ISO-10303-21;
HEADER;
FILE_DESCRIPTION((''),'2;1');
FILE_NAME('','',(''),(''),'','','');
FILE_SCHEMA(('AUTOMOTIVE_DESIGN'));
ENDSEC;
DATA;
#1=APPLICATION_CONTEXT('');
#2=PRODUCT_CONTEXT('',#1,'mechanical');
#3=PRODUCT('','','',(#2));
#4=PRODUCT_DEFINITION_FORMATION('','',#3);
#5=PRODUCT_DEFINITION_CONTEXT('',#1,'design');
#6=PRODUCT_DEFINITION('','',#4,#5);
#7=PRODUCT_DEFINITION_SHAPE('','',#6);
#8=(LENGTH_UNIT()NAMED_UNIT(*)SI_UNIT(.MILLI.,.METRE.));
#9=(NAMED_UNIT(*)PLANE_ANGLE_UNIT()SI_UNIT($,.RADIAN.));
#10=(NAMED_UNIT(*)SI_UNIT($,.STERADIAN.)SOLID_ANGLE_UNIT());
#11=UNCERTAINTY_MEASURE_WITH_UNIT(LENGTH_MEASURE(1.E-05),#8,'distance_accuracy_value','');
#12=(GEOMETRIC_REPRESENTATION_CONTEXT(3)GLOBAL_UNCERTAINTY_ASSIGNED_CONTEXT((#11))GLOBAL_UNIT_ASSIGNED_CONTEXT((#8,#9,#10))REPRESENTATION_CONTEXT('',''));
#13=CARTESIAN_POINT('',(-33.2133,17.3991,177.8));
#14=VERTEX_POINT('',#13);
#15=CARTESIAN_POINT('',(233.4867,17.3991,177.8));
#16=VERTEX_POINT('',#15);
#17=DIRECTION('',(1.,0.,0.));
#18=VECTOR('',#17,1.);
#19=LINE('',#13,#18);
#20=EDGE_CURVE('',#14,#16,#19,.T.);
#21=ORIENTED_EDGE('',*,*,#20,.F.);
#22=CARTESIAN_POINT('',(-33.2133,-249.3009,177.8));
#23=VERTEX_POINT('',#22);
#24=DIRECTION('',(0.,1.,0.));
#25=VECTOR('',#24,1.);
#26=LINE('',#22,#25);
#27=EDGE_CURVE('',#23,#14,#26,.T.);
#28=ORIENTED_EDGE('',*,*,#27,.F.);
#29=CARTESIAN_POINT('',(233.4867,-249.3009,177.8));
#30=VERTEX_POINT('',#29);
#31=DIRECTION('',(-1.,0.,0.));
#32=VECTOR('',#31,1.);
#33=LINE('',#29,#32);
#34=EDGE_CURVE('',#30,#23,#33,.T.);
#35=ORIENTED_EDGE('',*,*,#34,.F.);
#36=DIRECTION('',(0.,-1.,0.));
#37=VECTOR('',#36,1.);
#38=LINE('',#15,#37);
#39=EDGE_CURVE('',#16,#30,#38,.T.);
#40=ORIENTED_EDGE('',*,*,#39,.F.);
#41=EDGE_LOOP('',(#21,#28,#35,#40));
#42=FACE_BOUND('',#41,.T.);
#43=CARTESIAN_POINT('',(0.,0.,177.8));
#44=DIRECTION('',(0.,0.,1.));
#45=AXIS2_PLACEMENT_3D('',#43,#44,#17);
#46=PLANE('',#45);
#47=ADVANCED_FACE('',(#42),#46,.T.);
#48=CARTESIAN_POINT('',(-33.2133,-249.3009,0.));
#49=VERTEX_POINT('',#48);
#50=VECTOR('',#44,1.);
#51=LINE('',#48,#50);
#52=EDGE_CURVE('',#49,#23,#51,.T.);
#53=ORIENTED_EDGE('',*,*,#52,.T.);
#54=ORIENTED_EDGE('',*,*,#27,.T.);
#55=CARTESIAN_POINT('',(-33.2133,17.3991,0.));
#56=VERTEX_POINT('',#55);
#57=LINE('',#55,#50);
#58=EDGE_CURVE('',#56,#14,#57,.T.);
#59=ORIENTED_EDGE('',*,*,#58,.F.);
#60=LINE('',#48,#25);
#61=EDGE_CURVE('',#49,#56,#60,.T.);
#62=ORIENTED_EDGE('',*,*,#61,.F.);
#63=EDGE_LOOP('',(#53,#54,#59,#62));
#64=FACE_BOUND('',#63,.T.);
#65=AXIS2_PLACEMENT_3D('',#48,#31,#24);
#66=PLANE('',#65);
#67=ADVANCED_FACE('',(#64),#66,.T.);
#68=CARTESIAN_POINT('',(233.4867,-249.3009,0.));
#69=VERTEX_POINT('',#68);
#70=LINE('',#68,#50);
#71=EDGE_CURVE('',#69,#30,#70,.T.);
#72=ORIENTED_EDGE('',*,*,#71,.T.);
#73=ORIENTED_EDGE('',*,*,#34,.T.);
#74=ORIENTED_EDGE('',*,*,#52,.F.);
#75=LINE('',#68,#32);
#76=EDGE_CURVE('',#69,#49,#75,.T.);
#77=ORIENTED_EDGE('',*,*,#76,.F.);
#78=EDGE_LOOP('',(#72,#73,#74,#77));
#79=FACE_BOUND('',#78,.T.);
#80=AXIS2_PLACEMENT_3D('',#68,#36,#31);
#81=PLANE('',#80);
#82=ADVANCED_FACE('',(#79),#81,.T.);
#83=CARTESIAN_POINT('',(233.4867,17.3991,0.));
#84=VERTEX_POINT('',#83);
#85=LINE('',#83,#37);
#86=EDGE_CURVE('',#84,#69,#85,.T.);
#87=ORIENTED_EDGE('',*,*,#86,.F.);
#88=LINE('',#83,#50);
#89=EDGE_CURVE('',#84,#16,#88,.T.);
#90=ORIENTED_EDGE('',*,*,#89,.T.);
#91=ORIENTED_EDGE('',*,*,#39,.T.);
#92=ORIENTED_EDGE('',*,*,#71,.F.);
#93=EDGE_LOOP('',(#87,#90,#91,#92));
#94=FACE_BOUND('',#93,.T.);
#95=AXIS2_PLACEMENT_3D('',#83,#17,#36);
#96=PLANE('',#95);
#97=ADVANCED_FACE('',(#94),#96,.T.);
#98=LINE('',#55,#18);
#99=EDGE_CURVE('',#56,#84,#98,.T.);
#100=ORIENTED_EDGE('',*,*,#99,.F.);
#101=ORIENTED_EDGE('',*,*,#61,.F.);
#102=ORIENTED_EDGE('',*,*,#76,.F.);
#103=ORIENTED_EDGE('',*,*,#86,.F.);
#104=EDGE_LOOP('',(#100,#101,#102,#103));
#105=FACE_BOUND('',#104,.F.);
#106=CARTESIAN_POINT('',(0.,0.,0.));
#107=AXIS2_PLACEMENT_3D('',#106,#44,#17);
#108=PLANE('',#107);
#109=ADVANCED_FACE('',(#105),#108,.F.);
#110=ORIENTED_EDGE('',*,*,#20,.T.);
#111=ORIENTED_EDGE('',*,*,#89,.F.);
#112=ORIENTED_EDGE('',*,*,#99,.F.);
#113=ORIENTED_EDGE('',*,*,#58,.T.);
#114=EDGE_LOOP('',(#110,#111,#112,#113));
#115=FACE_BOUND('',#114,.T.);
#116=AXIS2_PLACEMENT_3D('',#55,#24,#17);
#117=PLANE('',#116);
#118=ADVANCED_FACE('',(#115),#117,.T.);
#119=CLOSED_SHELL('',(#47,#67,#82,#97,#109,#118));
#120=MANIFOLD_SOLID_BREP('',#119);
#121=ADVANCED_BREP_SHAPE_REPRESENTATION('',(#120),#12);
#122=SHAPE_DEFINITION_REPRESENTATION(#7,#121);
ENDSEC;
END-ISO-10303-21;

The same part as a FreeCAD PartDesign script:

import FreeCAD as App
import Part
import Sketcher

V = App.Vector
Q = App.Units.Quantity

doc = App.newDocument("Part")
body = doc.addObject("PartDesign::Body", "Body")

sketch1 = doc.addObject("Sketcher::SketchObject", "Sketch")
body.addObject(sketch1)
sketch1.AttachmentSupport = (doc.XY_Plane, [""])
sketch1.MapMode = "FlatFace"
sketch1.addGeometry([
    Part.LineSegment(V(233.4867, 17.3991, 0), V(-33.2133, 17.3991, 0)),
    Part.LineSegment(V(-33.2133, 17.3991, 0), V(-33.2133, -249.3009, 0)),
    Part.LineSegment(V(-33.2133, -249.3009, 0), V(233.4867, -249.3009, 0)),
    Part.LineSegment(V(233.4867, -249.3009, 0), V(233.4867, 17.3991, 0)),
], False)
sketch1.addConstraint([
    Sketcher.Constraint("Coincident", 0, 2, 1, 1),
    Sketcher.Constraint("Coincident", 1, 2, 2, 1),
    Sketcher.Constraint("Coincident", 2, 2, 3, 1),
    Sketcher.Constraint("Coincident", 3, 2, 0, 1),
    Sketcher.Constraint("Horizontal", 0),
    Sketcher.Constraint("Vertical", 1),
    Sketcher.Constraint("Horizontal", 2),
    Sketcher.Constraint("Vertical", 3),
    Sketcher.Constraint("Equal", 2, 1),
    Sketcher.Constraint("DistanceX", 0, 2, 0, 1, Q("10.5 in")),
    Sketcher.Constraint("DistanceY", -1, 1, 0, 2, Q("0.685 in")),
    Sketcher.Constraint("DistanceX", 0, 2, -1, 1, Q("1.3076 in")),
])
pad1 = doc.addObject("PartDesign::Pad", "Pad")
body.addObject(pad1)
pad1.Profile = sketch1
pad1.Length = Q("7 in")

doc.recompute()
